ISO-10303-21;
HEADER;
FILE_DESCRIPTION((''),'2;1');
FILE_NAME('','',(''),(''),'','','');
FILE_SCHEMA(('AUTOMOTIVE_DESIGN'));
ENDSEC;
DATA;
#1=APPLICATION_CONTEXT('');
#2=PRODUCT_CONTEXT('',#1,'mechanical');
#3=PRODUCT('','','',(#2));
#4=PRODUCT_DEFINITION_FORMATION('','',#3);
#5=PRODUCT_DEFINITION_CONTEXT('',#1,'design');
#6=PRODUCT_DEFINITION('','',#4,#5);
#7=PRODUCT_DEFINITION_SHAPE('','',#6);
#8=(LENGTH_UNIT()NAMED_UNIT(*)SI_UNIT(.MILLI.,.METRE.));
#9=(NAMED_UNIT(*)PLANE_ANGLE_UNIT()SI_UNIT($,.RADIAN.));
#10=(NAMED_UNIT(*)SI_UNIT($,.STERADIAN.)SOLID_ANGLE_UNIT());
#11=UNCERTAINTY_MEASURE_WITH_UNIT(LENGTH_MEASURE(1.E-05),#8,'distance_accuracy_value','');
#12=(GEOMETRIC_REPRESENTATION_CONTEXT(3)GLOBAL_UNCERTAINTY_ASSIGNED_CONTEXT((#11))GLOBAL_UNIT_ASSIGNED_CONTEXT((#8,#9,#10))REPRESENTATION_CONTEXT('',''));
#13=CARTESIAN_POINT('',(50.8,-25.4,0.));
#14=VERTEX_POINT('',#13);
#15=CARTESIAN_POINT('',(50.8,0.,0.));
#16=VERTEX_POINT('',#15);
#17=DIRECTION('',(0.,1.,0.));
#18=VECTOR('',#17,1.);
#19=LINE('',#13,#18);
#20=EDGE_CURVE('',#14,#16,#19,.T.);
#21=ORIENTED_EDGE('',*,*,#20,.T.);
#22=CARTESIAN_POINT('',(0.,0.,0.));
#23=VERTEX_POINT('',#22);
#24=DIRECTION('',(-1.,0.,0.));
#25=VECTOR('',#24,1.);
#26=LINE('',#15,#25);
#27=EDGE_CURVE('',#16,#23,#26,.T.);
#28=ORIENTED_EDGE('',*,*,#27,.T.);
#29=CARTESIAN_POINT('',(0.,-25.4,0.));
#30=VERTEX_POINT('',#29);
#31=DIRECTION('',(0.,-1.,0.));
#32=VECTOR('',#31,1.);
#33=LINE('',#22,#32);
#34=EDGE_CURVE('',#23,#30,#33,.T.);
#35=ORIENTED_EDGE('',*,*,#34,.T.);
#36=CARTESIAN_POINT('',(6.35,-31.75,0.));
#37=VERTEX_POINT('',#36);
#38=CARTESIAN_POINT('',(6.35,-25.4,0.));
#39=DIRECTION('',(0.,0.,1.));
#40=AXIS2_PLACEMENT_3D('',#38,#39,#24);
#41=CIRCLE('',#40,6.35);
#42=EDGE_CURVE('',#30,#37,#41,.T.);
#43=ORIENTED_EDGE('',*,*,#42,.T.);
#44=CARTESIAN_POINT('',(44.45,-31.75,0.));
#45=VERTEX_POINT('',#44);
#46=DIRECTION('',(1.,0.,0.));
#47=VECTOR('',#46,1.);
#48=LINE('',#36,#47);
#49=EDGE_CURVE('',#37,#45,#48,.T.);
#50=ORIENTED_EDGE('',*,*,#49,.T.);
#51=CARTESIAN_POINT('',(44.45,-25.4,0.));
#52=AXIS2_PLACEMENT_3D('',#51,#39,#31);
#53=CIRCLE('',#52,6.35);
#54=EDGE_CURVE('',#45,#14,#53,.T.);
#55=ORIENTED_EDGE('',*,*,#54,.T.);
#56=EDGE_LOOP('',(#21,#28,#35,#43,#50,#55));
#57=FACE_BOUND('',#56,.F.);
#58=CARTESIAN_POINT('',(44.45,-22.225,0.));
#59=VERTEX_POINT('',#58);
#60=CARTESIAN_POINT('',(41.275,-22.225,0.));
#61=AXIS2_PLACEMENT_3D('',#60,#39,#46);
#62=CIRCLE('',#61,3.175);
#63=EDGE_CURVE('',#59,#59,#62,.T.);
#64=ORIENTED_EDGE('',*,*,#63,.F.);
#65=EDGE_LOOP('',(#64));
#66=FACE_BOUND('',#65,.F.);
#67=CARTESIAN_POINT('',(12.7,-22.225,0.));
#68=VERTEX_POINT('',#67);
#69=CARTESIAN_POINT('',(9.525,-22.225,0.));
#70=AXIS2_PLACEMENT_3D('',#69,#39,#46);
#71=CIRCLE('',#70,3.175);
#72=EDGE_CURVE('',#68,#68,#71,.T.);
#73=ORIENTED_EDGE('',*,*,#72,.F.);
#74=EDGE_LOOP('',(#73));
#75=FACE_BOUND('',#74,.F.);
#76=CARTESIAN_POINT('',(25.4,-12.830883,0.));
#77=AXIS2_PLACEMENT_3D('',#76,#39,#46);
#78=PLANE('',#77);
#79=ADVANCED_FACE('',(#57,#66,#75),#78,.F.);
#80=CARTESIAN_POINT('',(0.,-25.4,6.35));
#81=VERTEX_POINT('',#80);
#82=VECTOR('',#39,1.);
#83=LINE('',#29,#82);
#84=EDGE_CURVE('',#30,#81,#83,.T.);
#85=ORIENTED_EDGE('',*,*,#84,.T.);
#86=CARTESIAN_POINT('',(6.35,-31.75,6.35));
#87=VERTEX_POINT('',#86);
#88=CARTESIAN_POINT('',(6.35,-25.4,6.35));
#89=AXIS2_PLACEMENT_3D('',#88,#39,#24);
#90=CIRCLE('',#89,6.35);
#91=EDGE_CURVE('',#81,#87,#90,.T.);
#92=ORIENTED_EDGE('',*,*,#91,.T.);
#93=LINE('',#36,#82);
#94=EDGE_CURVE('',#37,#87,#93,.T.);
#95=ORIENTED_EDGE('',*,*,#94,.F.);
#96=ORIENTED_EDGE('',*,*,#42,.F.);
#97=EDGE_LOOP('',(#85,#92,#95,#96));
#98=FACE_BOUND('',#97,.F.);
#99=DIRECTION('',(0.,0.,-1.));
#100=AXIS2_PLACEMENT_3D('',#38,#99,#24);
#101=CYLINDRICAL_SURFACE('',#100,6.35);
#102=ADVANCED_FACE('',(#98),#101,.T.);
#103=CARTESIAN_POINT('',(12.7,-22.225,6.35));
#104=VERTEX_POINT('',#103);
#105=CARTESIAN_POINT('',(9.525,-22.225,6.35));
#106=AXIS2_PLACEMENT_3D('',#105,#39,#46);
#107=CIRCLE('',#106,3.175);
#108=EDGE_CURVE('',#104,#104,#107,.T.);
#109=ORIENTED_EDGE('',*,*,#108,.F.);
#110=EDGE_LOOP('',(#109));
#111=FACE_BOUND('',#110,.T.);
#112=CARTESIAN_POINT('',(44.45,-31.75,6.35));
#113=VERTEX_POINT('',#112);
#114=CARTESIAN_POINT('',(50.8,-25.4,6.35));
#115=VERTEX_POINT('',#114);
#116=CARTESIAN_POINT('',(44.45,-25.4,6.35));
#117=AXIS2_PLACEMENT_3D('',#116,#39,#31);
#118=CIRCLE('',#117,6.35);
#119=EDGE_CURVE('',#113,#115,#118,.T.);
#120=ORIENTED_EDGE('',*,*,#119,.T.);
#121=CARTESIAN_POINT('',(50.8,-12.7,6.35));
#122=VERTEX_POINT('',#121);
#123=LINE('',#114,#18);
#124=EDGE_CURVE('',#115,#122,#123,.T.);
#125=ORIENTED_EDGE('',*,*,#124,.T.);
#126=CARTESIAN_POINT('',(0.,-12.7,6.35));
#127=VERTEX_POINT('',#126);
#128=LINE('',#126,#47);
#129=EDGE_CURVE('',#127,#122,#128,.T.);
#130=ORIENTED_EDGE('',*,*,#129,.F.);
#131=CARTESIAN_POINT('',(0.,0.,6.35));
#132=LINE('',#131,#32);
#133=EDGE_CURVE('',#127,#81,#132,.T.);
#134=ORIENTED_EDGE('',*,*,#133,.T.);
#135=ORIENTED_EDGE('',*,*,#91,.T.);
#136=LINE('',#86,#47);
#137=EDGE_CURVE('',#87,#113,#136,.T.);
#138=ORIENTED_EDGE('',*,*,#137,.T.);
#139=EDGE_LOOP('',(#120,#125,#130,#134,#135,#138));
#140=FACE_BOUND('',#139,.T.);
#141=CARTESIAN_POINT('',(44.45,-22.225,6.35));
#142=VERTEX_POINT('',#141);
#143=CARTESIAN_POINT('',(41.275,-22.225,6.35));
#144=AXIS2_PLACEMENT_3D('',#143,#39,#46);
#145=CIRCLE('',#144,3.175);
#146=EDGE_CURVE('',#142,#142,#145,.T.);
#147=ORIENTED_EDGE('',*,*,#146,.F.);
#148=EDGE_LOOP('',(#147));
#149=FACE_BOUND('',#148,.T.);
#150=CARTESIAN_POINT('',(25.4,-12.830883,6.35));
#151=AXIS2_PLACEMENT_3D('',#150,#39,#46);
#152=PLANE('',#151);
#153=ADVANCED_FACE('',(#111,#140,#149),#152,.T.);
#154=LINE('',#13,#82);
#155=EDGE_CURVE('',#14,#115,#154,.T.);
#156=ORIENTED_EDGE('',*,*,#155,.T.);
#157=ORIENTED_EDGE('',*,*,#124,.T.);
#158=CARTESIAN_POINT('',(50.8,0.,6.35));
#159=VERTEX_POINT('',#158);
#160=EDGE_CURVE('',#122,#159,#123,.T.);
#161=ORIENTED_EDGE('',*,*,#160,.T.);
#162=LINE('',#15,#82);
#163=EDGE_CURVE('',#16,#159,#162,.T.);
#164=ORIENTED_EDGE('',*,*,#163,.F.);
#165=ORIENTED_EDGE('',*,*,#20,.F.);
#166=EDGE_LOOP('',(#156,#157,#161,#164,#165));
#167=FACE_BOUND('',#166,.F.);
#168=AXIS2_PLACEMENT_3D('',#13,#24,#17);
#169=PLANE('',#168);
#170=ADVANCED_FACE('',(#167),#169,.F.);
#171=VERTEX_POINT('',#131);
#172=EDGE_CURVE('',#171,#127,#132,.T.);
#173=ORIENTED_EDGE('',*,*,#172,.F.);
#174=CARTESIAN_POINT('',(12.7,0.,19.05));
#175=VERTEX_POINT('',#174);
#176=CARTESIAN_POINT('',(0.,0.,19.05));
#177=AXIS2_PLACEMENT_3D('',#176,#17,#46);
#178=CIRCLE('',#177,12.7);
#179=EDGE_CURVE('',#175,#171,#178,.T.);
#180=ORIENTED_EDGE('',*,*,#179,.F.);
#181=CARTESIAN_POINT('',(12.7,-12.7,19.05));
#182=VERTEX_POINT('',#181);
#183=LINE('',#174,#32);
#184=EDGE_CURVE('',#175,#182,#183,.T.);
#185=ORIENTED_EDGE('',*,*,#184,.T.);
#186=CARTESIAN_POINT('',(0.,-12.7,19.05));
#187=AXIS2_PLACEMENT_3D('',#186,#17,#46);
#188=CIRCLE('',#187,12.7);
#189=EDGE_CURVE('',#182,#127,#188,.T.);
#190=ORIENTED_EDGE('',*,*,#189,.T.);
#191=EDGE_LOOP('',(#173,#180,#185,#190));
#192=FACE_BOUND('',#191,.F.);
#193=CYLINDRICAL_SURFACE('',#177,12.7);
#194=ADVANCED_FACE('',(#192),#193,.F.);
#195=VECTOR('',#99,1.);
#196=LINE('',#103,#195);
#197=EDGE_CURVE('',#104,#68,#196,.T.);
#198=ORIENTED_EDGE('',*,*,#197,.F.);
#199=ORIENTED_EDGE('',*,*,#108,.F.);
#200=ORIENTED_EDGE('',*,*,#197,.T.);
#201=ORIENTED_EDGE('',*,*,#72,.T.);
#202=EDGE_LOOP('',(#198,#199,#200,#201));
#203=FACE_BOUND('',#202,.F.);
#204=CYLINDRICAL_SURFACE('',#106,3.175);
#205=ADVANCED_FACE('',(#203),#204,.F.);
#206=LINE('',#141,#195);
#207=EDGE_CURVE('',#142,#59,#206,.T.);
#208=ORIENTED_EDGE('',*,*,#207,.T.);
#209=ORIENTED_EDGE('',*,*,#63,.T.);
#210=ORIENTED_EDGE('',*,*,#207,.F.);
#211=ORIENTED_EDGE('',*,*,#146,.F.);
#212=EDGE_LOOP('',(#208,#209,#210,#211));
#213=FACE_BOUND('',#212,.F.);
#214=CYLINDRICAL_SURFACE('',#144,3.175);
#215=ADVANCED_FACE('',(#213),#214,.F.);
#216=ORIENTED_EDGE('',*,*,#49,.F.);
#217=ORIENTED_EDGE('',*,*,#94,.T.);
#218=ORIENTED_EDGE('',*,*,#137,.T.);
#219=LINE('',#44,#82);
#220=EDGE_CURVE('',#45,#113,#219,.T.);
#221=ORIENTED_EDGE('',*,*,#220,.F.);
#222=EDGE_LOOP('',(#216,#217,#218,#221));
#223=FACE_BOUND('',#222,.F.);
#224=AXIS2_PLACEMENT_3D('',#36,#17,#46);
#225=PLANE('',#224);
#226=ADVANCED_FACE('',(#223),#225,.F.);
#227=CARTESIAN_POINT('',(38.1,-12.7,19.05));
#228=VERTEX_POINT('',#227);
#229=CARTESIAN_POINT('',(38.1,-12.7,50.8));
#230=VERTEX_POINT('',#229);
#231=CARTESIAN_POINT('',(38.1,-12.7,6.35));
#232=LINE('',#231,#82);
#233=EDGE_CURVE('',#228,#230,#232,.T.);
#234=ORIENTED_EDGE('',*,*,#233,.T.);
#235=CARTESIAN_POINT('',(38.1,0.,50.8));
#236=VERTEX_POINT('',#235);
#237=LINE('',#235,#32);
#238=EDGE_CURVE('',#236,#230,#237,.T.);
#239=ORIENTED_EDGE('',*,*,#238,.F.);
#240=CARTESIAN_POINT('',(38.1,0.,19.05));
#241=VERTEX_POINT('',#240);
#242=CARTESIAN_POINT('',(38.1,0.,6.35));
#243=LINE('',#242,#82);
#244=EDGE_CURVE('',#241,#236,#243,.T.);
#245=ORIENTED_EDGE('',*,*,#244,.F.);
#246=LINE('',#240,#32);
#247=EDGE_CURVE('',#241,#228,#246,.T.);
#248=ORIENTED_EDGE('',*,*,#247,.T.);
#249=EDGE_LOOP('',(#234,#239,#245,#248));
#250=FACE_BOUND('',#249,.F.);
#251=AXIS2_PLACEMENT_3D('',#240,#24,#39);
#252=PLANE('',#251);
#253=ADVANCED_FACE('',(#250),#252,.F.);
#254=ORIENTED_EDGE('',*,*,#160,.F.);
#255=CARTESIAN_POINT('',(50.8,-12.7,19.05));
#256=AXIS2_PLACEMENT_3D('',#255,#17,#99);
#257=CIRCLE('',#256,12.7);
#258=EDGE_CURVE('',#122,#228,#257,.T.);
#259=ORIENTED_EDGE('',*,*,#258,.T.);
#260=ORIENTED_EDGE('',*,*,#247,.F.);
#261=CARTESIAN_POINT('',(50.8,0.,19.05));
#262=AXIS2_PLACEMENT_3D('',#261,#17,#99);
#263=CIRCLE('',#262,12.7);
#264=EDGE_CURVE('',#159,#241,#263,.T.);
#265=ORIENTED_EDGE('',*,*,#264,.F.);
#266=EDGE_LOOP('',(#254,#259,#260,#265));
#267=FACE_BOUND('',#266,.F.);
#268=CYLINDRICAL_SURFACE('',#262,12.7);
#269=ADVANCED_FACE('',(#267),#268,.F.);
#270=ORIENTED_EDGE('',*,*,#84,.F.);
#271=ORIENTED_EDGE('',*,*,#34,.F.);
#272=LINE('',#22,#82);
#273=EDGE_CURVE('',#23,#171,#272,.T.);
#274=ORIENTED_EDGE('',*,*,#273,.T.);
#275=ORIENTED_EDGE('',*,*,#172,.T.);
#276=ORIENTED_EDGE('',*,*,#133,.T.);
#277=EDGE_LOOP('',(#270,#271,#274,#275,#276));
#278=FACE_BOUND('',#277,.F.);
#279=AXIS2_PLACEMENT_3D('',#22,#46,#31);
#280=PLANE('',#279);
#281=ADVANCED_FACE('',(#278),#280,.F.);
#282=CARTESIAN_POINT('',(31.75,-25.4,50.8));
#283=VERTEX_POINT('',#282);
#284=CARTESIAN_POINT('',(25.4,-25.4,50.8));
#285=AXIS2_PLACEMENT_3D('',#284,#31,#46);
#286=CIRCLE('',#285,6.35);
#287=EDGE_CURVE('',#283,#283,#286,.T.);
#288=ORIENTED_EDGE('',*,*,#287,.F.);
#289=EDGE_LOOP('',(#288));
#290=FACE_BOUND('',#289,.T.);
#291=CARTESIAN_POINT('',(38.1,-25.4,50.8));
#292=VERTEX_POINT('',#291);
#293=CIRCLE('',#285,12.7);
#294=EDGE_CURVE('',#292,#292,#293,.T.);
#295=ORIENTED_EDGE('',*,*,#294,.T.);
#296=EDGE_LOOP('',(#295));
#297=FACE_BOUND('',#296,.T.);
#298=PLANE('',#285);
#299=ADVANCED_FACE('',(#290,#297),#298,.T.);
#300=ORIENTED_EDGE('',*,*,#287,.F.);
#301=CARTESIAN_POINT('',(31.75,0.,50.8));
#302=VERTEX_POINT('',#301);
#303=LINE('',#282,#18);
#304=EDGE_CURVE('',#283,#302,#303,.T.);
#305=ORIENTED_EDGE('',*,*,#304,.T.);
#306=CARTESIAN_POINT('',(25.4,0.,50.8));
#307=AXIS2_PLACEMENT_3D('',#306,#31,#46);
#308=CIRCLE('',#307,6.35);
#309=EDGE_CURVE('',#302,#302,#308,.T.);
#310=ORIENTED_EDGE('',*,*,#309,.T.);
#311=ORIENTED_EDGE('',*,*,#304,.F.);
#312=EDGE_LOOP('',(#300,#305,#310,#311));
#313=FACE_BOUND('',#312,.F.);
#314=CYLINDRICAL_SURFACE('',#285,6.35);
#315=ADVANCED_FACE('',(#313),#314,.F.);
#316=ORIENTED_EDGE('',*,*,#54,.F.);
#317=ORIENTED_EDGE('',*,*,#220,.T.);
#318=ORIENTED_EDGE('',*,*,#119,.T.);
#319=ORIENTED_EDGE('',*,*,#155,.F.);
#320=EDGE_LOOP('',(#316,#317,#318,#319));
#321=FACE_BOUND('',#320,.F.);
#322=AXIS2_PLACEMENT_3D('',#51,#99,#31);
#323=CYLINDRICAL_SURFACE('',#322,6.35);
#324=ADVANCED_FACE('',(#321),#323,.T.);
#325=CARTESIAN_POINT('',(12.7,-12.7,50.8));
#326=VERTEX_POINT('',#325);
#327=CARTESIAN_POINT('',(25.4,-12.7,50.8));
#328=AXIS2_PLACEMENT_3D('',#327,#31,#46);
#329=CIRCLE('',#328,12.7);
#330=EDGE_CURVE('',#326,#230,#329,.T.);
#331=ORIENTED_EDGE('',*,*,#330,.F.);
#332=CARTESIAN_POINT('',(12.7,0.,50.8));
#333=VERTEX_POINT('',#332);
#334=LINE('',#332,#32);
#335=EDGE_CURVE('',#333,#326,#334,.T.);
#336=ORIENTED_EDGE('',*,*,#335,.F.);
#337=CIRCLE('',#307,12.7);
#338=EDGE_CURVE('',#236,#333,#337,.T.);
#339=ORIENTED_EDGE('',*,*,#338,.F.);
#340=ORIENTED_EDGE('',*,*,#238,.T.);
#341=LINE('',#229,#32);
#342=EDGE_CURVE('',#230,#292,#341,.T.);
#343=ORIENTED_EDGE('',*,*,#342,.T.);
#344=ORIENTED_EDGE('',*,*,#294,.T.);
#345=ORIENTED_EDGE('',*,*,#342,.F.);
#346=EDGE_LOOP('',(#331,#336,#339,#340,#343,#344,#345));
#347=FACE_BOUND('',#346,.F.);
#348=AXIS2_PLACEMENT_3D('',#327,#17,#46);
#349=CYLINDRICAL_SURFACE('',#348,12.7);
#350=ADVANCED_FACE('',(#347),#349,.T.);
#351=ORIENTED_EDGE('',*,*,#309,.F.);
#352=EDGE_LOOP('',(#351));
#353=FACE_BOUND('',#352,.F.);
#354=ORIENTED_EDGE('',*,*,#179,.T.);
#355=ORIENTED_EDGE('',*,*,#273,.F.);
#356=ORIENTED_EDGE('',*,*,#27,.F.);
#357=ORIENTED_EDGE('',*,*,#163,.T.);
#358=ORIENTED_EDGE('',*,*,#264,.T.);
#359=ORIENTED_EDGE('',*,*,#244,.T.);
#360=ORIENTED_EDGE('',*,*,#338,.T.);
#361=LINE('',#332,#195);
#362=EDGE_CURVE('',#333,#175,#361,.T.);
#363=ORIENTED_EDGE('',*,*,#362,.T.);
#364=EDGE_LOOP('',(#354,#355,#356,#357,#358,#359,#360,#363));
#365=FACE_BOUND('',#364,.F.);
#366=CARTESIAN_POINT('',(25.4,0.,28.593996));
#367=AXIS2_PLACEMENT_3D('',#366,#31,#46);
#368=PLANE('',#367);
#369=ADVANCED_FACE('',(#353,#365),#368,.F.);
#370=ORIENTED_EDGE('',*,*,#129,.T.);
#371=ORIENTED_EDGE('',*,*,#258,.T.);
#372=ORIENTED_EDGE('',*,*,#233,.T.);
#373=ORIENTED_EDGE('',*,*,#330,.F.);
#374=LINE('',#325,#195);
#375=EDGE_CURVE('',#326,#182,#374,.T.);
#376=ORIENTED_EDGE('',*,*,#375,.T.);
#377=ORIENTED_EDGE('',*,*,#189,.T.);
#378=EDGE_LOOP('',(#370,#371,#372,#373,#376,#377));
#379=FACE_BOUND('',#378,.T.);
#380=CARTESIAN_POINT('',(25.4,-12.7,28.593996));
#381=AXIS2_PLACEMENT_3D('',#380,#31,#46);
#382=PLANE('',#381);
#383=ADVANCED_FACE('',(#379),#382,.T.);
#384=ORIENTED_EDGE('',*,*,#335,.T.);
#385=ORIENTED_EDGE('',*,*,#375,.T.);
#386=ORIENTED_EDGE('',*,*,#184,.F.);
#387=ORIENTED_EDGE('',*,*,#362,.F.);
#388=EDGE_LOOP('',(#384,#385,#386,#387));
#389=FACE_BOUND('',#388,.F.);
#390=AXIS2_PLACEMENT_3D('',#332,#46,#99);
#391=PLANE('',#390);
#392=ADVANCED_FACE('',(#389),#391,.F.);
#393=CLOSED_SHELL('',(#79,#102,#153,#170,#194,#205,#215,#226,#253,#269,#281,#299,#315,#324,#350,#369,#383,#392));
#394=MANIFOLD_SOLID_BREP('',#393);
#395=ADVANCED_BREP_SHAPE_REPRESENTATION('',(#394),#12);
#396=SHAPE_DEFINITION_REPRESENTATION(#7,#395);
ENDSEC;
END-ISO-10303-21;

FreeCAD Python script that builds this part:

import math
import FreeCAD as App
import Part
import Sketcher

V = App.Vector
Q = App.Units.Quantity

doc = App.newDocument("Part")
body = doc.addObject("PartDesign::Body", "Body")

sketch1 = body.newObject("Sketcher::SketchObject", "Sketch")
sketch1.AttachmentSupport = (doc.getObject("XY_Plane"), [""])
sketch1.MapMode = "FlatFace"
sketch1.addGeometry(Part.ArcOfCircle(Part.Circle(V(44.45, -25.4, 0), V(0, 0, 1), 6.35), math.radians(-90), math.radians(0)), False)
sketch1.addGeometry(Part.LineSegment(V(50.8, -25.4, 0), V(50.8, 0, 0)), False)
sketch1.addGeometry(Part.LineSegment(V(50.8, 0, 0), V(0, 0, 0)), False)
sketch1.addGeometry(Part.LineSegment(V(0, 0, 0), V(0, -25.4, 0)), False)
sketch1.addGeometry(Part.ArcOfCircle(Part.Circle(V(6.35, -25.4, 0), V(0, 0, 1), 6.35), math.radians(180), math.radians(270)), False)
sketch1.addGeometry(Part.LineSegment(V(6.35, -31.75, 0), V(44.45, -31.75, 0)), False)
sketch1.addConstraint(Sketcher.Constraint("Tangent", 0, 2, 1, 1))
sketch1.addConstraint(Sketcher.Constraint("Coincident", 1, 2, 2, 1))
sketch1.addConstraint(Sketcher.Constraint("Coincident", 2, 2, 3, 1))
sketch1.addConstraint(Sketcher.Constraint("Tangent", 3, 2, 4, 1))
sketch1.addConstraint(Sketcher.Constraint("Tangent", 4, 2, 5, 1))
sketch1.addConstraint(Sketcher.Constraint("Tangent", 5, 2, 0, 1))
sketch1.addConstraint(Sketcher.Constraint("Vertical", 1))
sketch1.addConstraint(Sketcher.Constraint("Horizontal", 2))
sketch1.addConstraint(Sketcher.Constraint("Vertical", 3))
sketch1.addConstraint(Sketcher.Constraint("Horizontal", 5))
sketch1.addConstraint(Sketcher.Constraint("Coincident", 2, 2, -1, 1))
sketch1.addConstraint(Sketcher.Constraint("Equal", 0, 4))
sketch1.addConstraint(Sketcher.Constraint("DistanceX", 2, 2, 2, 1, Q("2 in")))
sketch1.addConstraint(Sketcher.Constraint("DistanceY", 1, 1, 1, 2, Q("1 in")))
sketch1.addConstraint(Sketcher.Constraint("Radius", 0, Q("0.25 in")))
pad1 = body.newObject("PartDesign::Pad", "Pad")
pad1.Profile = sketch1
pad1.Length = Q("0.25 in")

sketch2 = body.newObject("Sketcher::SketchObject", "Sketch001")
sketch2.AttachmentSupport = (doc.getObject("XZ_Plane"), [""])
sketch2.MapMode = "FlatFace"
sketch2.addGeometry(Part.LineSegment(V(38.1, 19.05, 0), V(38.1, 50.8, 0)), False)
sketch2.addGeometry(Part.ArcOfCircle(Part.Circle(V(25.4, 50.8, 0), V(0, 0, 1), 12.7), math.radians(0), math.radians(180)), False)
sketch2.addGeometry(Part.LineSegment(V(12.7, 50.8, 0), V(12.7, 19.05, 0)), False)
sketch2.addGeometry(Part.ArcOfCircle(Part.Circle(V(0, 19.05, 0), V(0, 0, 1), 12.7), math.radians(-90), math.radians(0)), False)
sketch2.addGeometry(Part.LineSegment(V(0, 6.35, 0), V(50.8, 6.35, 0)), False)
sketch2.addGeometry(Part.ArcOfCircle(Part.Circle(V(50.8, 19.05, 0), V(0, 0, 1), 12.7), math.radians(180), math.radians(270)), False)
sketch2.addConstraint(Sketcher.Constraint("Tangent", 0, 2, 1, 1))
sketch2.addConstraint(Sketcher.Constraint("Tangent", 1, 2, 2, 1))
sketch2.addConstraint(Sketcher.Constraint("Tangent", 2, 2, 3, 2))
sketch2.addConstraint(Sketcher.Constraint("Tangent", 3, 1, 4, 1))
sketch2.addConstraint(Sketcher.Constraint("Tangent", 4, 2, 5, 2))
sketch2.addConstraint(Sketcher.Constraint("Tangent", 5, 1, 0, 1))
sketch2.addConstraint(Sketcher.Constraint("Vertical", 0))
sketch2.addConstraint(Sketcher.Constraint("Vertical", 2))
sketch2.addConstraint(Sketcher.Constraint("Horizontal", 4))
sketch2.addConstraint(Sketcher.Constraint("Equal", 1, 3))
sketch2.addConstraint(Sketcher.Constraint("Equal", 3, 5))
sketch2.addConstraint(Sketcher.Constraint("PointOnObject", 3, 3, -2))
sketch2.addConstraint(Sketcher.Constraint("Radius", 1, Q("0.5 in")))
sketch2.addConstraint(Sketcher.Constraint("DistanceY", -1, 1, 1, 3, Q("2 in")))
sketch2.addConstraint(Sketcher.Constraint("DistanceY", 0, 1, 0, 2, Q("1.25 in")))
pad2 = body.newObject("PartDesign::Pad", "Pad001")
pad2.Profile = sketch2
pad2.Length = Q("0.5 in")

sketch3 = body.newObject("Sketcher::SketchObject", "Sketch002")
sketch3.AttachmentSupport = (doc.getObject("XZ_Plane"), [""])
sketch3.MapMode = "FlatFace"
sketch3.AttachmentOffset = App.Placement(V(0, 0, 0.5 * 25.4), App.Rotation())
sketch3.addGeometry(Part.Circle(V(25.4, 50.8, 0), V(0, 0, 1), 12.7), False)
sketch3.addConstraint(Sketcher.Constraint("Diameter", 0, Q("1 in")))
sketch3.addConstraint(Sketcher.Constraint("DistanceX", -1, 1, 0, 3, Q("1 in")))
sketch3.addConstraint(Sketcher.Constraint("DistanceY", -1, 1, 0, 3, Q("2 in")))
pad3 = body.newObject("PartDesign::Pad", "Pad002")
pad3.Profile = sketch3
pad3.Length = Q("0.5 in")

sketch4 = body.newObject("Sketcher::SketchObject", "Sketch003")
sketch4.AttachmentSupport = (doc.getObject("XZ_Plane"), [""])
sketch4.MapMode = "FlatFace"
sketch4.AttachmentOffset = App.Placement(V(0, 0, 1 * 25.4), App.Rotation())
sketch4.addGeometry(Part.Circle(V(25.4, 50.8, 0), V(0, 0, 1), 6.35), False)
sketch4.addConstraint(Sketcher.Constraint("Diameter", 0, Q("0.5 in")))
sketch4.addConstraint(Sketcher.Constraint("DistanceX", -1, 1, 0, 3, Q("1 in")))
sketch4.addConstraint(Sketcher.Constraint("DistanceY", -1, 1, 0, 3, Q("2 in")))
pocket1 = body.newObject("PartDesign::Pocket", "Pocket")
pocket1.Profile = sketch4
pocket1.Length = Q("1 in")

sketch5 = body.newObject("Sketcher::SketchObject", "Sketch004")
sketch5.AttachmentSupport = (doc.getObject("XY_Plane"), [""])
sketch5.MapMode = "FlatFace"
sketch5.AttachmentOffset = App.Placement(V(0, 0, 0.25 * 25.4), App.Rotation())
sketch5.addGeometry(Part.Circle(V(9.525, -22.225, 0), V(0, 0, 1), 3.175), False)
sketch5.addGeometry(Part.Circle(V(41.275, -22.225, 0), V(0, 0, 1), 3.175), False)
sketch5.addConstraint(Sketcher.Constraint("Equal", 0, 1))
sketch5.addConstraint(Sketcher.Constraint("Horizontal", 0, 3, 1, 3))
sketch5.addConstraint(Sketcher.Constraint("Diameter", 0, Q("0.25 in")))
sketch5.addConstraint(Sketcher.Constraint("DistanceX", 0, 3, 1, 3, Q("1.25 in")))
sketch5.addConstraint(Sketcher.Constraint("DistanceX", -1, 1, 0, 3, Q("0.375 in")))
sketch5.addConstraint(Sketcher.Constraint("DistanceY", 0, 3, -1, 1, Q("0.875 in")))
pocket2 = body.newObject("PartDesign::Pocket", "Pocket001")
pocket2.Profile = sketch5
pocket2.Length = Q("0.25 in")

doc.recompute()
